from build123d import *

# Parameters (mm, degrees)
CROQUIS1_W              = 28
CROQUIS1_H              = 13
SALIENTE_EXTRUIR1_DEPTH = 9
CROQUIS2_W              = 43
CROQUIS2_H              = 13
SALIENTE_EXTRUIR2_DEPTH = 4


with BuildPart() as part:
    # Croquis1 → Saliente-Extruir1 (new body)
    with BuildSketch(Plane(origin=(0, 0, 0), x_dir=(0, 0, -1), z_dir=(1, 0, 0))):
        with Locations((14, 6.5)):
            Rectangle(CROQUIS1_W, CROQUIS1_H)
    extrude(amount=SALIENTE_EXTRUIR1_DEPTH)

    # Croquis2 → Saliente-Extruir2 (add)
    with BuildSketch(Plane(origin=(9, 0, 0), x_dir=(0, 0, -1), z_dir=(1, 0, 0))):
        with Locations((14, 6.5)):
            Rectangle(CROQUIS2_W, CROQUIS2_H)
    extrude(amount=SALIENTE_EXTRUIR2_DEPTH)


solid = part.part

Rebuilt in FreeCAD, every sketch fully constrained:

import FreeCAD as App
import Part
import Sketcher
from FreeCAD import Vector


def add_polygon(sketch, points):
    """Adds a closed chain of lines whose ends are joined by coincident constraints."""
    first, n = sketch.GeometryCount, len(points)
    for a, b in zip(points, points[1:] + points[:1]):
        sketch.addGeometry(Part.LineSegment(App.Vector(*a, 0), App.Vector(*b, 0)), False)
    for i in range(n):
        sketch.addConstraint(Sketcher.Constraint("Coincident", first + i, 2, first + (i + 1) % n, 1))

doc = App.newDocument("Part")
body = doc.addObject("PartDesign::Body", "Body")

# Sketch on YZ plane
sketch1 = doc.addObject("Sketcher::SketchObject", "Sketch")
body.addObject(sketch1)
sketch1.AttachmentSupport = (doc.YZ_Plane, [""])
sketch1.MapMode = "FlatFace"
add_polygon(sketch1, [(13, 0), (0, 0), (0, -28), (13, -28)])  # lines 0-3
sketch1.addConstraint([
    Sketcher.Constraint("Horizontal", 0),
    Sketcher.Constraint("Vertical", 1),
    Sketcher.Constraint("Horizontal", 2),
    Sketcher.Constraint("Vertical", 3),
    Sketcher.Constraint("Coincident", 0, 2, -1, 1),
    Sketcher.Constraint("DistanceX", 0, 2, 0, 1, 13.0),
    Sketcher.Constraint("DistanceY", 1, 2, 1, 1, 28.0),
])
pad1 = doc.addObject("PartDesign::Pad", "Pad")
body.addObject(pad1)
pad1.Profile = sketch1
pad1.Length = 9

# Sketch on YZ plane
sketch2 = doc.addObject("Sketcher::SketchObject", "Sketch001")
body.addObject(sketch2)
sketch2.AttachmentSupport = (doc.YZ_Plane, [""])
sketch2.MapMode = "FlatFace"
sketch2.AttachmentOffset = App.Placement(Vector(0, 0, 9), App.Rotation())
add_polygon(sketch2, [(13, 8), (0, 8), (0, -36), (13, -36)])  # lines 0-3
sketch2.addConstraint([
    Sketcher.Constraint("Horizontal", 0),
    Sketcher.Constraint("Vertical", 1),
    Sketcher.Constraint("Horizontal", 2),
    Sketcher.Constraint("Vertical", 3),
    Sketcher.Constraint("PointOnObject", 0, 2, -2),
    Sketcher.Constraint("DistanceX", 0, 2, 0, 1, 13.0),
    Sketcher.Constraint("DistanceY", 1, 2, 1, 1, 43.0),
    Sketcher.Constraint("DistanceY", -1, 1, 0, 2, 7.5),
])
pad2 = doc.addObject("PartDesign::Pad", "Pad001")
body.addObject(pad2)
pad2.Profile = sketch2
pad2.Length = 4

doc.recompute()
